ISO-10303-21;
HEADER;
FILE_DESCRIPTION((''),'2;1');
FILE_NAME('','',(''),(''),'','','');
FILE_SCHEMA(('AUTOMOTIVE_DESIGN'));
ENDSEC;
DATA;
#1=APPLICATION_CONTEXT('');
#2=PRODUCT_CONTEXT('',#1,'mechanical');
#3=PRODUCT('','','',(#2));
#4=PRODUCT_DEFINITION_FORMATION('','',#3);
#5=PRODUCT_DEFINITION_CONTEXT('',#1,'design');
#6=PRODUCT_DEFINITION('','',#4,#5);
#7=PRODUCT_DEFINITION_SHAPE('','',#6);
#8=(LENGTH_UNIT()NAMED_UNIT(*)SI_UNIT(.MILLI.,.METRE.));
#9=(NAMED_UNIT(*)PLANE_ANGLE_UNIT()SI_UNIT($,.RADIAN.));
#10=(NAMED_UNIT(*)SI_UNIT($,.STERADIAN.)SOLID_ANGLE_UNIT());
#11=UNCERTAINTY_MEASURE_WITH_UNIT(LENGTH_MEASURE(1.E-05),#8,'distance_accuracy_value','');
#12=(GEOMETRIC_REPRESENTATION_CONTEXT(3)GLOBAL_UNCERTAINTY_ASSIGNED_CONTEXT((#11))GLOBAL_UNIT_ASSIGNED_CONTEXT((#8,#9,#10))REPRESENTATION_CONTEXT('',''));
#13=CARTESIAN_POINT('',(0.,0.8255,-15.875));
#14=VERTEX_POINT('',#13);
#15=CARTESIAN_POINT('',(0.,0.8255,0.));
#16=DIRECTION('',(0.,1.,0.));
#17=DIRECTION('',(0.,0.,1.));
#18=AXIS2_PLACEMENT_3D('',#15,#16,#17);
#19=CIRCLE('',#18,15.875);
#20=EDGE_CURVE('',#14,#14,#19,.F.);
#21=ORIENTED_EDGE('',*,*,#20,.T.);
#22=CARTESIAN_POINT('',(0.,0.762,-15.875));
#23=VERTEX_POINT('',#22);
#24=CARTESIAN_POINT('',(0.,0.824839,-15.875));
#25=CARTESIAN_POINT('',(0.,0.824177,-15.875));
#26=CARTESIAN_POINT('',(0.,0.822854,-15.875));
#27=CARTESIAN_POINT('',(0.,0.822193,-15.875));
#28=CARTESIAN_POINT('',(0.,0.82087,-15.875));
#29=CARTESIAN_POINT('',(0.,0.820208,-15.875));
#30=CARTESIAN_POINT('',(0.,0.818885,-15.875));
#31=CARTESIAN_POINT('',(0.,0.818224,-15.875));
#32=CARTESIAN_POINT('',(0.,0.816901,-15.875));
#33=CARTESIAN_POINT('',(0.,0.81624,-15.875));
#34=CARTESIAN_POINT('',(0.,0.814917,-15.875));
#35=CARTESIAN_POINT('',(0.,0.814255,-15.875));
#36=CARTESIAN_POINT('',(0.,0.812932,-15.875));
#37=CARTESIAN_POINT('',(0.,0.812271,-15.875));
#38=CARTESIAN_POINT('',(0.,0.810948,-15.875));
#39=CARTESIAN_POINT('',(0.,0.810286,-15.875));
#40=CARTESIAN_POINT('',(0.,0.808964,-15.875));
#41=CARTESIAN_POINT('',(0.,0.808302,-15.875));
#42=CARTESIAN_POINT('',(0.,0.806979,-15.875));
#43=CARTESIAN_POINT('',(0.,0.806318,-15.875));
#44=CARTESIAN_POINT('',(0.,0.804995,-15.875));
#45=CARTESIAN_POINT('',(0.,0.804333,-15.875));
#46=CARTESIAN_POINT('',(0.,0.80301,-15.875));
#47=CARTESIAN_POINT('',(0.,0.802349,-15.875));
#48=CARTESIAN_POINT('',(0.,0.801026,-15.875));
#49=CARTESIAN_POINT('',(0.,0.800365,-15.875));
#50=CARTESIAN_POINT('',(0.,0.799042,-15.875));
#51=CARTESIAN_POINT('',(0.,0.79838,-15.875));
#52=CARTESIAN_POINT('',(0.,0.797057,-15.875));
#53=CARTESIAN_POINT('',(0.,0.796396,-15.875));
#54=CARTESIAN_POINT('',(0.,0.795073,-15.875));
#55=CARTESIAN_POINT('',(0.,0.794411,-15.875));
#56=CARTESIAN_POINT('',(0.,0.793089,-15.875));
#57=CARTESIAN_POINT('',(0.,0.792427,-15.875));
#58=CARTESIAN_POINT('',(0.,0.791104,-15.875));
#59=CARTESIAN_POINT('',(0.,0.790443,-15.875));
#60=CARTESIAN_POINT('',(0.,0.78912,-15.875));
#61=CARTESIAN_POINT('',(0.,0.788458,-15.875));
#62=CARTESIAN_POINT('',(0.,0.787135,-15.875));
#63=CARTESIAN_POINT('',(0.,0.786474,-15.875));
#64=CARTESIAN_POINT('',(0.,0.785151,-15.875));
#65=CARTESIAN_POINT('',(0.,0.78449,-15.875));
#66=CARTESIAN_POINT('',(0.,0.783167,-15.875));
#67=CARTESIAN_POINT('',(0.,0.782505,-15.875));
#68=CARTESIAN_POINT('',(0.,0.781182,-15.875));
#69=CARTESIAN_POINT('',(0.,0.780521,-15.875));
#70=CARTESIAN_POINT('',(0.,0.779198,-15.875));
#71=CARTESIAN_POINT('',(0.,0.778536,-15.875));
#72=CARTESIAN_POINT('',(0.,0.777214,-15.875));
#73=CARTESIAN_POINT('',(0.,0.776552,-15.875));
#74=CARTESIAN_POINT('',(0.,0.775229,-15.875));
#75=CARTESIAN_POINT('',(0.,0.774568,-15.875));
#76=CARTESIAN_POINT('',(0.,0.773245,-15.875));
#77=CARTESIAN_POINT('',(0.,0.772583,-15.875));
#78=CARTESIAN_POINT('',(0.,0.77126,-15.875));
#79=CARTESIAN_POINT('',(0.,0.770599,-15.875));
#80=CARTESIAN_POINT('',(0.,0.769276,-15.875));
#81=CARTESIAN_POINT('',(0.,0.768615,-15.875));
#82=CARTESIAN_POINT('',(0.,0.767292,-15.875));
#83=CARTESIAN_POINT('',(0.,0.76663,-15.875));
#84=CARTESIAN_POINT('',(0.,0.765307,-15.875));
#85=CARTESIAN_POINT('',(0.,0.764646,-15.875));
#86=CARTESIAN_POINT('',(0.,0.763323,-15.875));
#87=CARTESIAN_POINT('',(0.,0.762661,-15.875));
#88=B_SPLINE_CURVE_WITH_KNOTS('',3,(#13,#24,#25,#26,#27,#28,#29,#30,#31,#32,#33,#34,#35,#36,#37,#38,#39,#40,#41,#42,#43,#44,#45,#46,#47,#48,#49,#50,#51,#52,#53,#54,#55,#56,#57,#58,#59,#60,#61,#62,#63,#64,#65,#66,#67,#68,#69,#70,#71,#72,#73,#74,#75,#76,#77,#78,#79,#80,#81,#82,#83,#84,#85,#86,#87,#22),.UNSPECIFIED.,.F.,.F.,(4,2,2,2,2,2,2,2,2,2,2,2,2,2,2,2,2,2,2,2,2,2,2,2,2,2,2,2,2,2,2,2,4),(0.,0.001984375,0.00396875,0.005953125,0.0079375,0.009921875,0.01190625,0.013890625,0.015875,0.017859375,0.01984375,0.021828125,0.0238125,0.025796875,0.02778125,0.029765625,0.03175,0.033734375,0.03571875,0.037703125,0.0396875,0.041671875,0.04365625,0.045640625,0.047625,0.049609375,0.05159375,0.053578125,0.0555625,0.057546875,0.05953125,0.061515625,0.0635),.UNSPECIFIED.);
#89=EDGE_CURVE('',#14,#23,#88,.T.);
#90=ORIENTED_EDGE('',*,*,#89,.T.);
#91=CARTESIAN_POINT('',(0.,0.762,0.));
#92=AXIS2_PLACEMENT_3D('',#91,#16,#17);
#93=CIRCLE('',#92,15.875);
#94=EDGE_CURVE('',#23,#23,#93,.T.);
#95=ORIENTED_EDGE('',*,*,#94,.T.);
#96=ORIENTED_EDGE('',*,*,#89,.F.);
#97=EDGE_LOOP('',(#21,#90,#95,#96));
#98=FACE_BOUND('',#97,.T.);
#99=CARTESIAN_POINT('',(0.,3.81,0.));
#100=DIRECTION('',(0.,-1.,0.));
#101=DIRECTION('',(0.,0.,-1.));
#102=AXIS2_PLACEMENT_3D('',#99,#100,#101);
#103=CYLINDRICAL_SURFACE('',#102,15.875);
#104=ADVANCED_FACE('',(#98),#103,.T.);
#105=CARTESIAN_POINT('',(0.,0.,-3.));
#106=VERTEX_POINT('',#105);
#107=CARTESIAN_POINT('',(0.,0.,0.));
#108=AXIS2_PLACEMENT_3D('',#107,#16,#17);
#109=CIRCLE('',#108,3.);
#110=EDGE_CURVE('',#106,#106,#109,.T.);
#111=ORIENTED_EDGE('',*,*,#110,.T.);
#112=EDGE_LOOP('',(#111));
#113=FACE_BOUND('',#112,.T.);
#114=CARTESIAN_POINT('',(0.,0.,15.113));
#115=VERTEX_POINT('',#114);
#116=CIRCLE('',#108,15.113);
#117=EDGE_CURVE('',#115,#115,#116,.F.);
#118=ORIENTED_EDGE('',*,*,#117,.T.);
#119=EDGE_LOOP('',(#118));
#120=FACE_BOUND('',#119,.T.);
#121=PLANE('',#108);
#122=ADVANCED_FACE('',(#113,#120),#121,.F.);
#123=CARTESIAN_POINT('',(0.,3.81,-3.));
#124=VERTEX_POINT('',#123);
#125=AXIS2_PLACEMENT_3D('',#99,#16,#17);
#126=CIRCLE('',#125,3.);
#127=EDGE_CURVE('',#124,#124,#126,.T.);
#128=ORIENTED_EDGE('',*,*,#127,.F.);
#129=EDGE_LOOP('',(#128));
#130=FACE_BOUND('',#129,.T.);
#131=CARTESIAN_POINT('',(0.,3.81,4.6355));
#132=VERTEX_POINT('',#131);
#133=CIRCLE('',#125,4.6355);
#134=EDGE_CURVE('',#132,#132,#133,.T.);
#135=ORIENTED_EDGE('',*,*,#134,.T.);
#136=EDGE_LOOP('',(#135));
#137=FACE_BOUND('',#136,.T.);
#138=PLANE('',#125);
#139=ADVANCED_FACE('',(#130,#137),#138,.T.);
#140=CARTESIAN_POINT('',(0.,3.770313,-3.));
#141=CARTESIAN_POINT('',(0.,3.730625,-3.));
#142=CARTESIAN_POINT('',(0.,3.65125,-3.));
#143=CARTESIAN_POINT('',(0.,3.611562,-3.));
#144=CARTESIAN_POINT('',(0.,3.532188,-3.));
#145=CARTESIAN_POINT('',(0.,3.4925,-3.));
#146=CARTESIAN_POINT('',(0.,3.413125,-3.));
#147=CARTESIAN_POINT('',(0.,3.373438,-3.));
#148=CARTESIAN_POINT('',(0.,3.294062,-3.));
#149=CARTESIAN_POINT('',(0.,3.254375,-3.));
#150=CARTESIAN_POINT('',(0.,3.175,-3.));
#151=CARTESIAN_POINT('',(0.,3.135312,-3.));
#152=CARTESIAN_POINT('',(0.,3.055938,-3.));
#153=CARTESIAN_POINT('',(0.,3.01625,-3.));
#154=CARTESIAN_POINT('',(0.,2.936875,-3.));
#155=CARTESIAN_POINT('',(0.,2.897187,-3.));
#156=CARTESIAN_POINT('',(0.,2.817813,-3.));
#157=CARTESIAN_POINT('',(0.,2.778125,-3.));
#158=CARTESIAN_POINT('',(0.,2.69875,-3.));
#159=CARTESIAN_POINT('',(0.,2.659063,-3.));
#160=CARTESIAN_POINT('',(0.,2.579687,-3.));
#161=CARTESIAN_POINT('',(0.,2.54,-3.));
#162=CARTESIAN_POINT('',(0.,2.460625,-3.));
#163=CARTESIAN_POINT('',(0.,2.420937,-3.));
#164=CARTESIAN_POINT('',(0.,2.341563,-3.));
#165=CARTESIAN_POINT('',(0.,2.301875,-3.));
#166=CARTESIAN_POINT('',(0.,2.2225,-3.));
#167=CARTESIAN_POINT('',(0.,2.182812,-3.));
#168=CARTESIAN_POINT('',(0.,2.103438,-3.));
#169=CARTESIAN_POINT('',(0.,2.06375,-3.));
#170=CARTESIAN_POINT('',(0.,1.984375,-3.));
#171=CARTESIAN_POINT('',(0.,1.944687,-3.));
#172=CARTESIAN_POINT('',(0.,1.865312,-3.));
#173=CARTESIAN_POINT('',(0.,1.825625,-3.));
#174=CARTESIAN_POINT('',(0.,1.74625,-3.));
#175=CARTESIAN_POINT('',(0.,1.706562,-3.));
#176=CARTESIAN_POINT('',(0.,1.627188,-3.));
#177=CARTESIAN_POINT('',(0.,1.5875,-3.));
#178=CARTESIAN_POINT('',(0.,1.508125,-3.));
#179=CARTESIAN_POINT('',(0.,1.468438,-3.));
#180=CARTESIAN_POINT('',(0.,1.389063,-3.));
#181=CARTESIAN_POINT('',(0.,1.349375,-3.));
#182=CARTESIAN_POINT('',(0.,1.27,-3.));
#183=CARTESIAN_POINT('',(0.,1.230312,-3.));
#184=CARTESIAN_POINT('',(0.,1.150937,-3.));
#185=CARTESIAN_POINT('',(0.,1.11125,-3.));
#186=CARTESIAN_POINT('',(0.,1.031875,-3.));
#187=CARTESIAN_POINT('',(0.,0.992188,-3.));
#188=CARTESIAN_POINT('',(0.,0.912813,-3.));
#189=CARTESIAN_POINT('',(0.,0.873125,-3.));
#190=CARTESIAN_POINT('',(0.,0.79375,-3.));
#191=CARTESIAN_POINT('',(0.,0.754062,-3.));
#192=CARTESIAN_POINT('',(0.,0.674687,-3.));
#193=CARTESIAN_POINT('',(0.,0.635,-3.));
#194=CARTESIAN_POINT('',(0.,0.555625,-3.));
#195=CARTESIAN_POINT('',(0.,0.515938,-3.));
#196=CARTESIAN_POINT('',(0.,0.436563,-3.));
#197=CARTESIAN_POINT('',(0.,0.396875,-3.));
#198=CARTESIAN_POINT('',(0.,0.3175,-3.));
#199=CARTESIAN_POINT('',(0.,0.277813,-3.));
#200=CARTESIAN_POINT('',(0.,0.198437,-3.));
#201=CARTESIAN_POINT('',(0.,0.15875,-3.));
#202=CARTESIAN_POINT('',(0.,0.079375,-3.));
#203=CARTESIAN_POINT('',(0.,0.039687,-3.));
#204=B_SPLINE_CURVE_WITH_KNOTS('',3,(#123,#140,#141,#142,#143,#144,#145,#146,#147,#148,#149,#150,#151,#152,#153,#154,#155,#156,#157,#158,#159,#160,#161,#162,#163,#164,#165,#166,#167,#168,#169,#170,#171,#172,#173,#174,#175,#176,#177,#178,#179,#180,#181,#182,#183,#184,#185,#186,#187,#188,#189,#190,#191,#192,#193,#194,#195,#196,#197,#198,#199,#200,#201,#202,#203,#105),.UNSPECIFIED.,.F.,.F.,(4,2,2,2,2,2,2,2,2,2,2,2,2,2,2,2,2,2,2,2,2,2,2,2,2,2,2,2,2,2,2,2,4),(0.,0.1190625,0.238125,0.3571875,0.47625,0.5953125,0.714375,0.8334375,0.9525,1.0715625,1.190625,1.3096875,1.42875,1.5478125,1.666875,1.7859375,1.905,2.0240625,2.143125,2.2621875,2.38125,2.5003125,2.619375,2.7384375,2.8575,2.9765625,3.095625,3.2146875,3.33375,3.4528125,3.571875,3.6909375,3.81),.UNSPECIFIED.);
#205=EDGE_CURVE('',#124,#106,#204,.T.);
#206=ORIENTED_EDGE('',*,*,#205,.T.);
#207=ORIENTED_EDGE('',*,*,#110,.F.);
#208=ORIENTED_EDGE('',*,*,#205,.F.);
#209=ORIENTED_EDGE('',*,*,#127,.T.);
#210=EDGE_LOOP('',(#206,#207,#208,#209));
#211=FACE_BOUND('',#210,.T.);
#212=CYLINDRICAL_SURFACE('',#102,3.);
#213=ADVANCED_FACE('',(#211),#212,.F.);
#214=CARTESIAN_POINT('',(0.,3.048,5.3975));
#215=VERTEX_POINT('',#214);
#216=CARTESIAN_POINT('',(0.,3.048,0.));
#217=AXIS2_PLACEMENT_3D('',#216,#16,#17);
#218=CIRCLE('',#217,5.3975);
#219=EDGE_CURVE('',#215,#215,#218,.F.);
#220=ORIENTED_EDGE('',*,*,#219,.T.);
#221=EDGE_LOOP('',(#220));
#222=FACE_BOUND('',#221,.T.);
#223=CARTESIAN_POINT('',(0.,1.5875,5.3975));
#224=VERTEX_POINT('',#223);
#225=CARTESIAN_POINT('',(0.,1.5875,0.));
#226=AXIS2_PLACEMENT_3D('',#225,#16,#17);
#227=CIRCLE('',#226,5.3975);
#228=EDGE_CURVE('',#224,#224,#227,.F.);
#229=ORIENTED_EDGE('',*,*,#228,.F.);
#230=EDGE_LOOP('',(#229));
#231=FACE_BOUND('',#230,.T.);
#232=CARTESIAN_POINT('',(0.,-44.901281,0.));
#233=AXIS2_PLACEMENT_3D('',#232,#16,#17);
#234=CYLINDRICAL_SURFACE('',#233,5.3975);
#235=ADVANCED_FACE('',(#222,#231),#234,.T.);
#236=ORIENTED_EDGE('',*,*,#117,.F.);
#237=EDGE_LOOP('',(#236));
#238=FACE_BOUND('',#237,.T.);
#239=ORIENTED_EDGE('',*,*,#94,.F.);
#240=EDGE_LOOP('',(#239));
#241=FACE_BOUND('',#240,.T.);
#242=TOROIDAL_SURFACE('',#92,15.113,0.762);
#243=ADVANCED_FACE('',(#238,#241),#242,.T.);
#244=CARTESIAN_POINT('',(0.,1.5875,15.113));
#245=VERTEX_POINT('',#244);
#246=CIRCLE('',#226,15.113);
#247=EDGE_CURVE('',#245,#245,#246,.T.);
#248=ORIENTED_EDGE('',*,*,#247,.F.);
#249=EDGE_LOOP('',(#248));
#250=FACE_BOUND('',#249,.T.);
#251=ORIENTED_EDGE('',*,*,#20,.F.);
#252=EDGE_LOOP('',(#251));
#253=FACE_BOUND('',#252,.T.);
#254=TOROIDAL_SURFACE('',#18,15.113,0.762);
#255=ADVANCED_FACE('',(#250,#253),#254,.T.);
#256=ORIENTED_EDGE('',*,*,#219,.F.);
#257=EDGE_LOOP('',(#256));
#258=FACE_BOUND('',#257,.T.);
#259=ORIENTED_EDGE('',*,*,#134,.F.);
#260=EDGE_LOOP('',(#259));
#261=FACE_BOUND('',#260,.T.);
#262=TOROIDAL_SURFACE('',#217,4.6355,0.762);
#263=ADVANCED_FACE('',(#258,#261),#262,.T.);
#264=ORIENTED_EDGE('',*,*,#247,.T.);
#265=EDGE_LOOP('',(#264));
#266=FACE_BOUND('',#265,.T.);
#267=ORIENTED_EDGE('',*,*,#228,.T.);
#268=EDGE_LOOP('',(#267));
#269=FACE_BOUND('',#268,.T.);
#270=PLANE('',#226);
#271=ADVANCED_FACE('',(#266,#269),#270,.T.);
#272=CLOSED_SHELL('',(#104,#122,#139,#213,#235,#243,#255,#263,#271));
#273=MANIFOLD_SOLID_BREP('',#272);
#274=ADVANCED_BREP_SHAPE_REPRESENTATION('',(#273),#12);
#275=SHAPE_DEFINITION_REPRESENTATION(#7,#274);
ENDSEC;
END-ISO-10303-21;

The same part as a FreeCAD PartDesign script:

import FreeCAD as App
import Part
import Sketcher
from FreeCAD import Vector
Q = App.Units.Quantity


def edges_at(feature, points):
    """Names of the edges that pass closest to the given points."""
    edges = feature.Shape.Edges
    near = lambda p: min(range(len(edges)), key=lambda i: edges[i].distToShape(Part.Vertex(*p))[0])
    return sorted({f"Edge{near(p) + 1}" for p in points})

doc = App.newDocument("Part")
body = doc.addObject("PartDesign::Body", "Body")

sketch1 = body.newObject("Sketcher::SketchObject", "Sketch")
sketch1.AttachmentSupport = (doc.getObject("XZ_Plane"), [""])
sketch1.MapMode = "FlatFace"
sketch1.addGeometry([
    Part.Circle(Vector(0, 0, 0), Vector(0, 0, 1), 15.9),
    Part.Circle(Vector(0, 0, 0), Vector(0, 0, 1), 3),
], False)
sketch1.addConstraint([
    Sketcher.Constraint("Coincident", 0, 3, -1, 1),
    Sketcher.Constraint("Coincident", 1, 3, -1, 1),
    Sketcher.Constraint("Diameter", 0, Q("1.25 in")),
    Sketcher.Constraint("Diameter", 1, Q("6 mm")),
])
pad1 = body.newObject("PartDesign::Pad", "Pad")
pad1.Profile = sketch1
pad1.Length = Q("0.15 in")
pad1.Reversed = True

sketch2 = body.newObject("Sketcher::SketchObject", "Sketch001")
sketch2.AttachmentSupport = (doc.getObject("XZ_Plane"), [""])
sketch2.MapMode = "FlatFace"
sketch2.AttachmentOffset = App.Placement(Vector(0, 0, -0.0625 * 25.4), App.Rotation())
sketch2.addGeometry([
    Part.Circle(Vector(0, 0, 0), Vector(0, 0, 1), 16),
    Part.Circle(Vector(0, 0, 0), Vector(0, 0, 1), 5),
], False)
sketch2.addConstraint([
    Sketcher.Constraint("Coincident", 0, 3, -1, 1),
    Sketcher.Constraint("Coincident", 1, 3, -1, 1),
    Sketcher.Constraint("Diameter", 0, Q("1.25 in")),
    Sketcher.Constraint("Diameter", 1, Q("0.425 in")),
])
pocket1 = body.newObject("PartDesign::Pocket", "Pocket")
pocket1.Profile = sketch2
pocket1.Length = Q("0.0875 in")
doc.recompute()

fillet = body.newObject("PartDesign::Fillet", "Fillet")
fillet.Base = (pocket1, edges_at(pocket1, [(0, 3.81, -5.397), (0, 1.587, 15.875), (0, 0, 15.875)]))
fillet.Radius = Q("0.03 in")

doc.recompute()
